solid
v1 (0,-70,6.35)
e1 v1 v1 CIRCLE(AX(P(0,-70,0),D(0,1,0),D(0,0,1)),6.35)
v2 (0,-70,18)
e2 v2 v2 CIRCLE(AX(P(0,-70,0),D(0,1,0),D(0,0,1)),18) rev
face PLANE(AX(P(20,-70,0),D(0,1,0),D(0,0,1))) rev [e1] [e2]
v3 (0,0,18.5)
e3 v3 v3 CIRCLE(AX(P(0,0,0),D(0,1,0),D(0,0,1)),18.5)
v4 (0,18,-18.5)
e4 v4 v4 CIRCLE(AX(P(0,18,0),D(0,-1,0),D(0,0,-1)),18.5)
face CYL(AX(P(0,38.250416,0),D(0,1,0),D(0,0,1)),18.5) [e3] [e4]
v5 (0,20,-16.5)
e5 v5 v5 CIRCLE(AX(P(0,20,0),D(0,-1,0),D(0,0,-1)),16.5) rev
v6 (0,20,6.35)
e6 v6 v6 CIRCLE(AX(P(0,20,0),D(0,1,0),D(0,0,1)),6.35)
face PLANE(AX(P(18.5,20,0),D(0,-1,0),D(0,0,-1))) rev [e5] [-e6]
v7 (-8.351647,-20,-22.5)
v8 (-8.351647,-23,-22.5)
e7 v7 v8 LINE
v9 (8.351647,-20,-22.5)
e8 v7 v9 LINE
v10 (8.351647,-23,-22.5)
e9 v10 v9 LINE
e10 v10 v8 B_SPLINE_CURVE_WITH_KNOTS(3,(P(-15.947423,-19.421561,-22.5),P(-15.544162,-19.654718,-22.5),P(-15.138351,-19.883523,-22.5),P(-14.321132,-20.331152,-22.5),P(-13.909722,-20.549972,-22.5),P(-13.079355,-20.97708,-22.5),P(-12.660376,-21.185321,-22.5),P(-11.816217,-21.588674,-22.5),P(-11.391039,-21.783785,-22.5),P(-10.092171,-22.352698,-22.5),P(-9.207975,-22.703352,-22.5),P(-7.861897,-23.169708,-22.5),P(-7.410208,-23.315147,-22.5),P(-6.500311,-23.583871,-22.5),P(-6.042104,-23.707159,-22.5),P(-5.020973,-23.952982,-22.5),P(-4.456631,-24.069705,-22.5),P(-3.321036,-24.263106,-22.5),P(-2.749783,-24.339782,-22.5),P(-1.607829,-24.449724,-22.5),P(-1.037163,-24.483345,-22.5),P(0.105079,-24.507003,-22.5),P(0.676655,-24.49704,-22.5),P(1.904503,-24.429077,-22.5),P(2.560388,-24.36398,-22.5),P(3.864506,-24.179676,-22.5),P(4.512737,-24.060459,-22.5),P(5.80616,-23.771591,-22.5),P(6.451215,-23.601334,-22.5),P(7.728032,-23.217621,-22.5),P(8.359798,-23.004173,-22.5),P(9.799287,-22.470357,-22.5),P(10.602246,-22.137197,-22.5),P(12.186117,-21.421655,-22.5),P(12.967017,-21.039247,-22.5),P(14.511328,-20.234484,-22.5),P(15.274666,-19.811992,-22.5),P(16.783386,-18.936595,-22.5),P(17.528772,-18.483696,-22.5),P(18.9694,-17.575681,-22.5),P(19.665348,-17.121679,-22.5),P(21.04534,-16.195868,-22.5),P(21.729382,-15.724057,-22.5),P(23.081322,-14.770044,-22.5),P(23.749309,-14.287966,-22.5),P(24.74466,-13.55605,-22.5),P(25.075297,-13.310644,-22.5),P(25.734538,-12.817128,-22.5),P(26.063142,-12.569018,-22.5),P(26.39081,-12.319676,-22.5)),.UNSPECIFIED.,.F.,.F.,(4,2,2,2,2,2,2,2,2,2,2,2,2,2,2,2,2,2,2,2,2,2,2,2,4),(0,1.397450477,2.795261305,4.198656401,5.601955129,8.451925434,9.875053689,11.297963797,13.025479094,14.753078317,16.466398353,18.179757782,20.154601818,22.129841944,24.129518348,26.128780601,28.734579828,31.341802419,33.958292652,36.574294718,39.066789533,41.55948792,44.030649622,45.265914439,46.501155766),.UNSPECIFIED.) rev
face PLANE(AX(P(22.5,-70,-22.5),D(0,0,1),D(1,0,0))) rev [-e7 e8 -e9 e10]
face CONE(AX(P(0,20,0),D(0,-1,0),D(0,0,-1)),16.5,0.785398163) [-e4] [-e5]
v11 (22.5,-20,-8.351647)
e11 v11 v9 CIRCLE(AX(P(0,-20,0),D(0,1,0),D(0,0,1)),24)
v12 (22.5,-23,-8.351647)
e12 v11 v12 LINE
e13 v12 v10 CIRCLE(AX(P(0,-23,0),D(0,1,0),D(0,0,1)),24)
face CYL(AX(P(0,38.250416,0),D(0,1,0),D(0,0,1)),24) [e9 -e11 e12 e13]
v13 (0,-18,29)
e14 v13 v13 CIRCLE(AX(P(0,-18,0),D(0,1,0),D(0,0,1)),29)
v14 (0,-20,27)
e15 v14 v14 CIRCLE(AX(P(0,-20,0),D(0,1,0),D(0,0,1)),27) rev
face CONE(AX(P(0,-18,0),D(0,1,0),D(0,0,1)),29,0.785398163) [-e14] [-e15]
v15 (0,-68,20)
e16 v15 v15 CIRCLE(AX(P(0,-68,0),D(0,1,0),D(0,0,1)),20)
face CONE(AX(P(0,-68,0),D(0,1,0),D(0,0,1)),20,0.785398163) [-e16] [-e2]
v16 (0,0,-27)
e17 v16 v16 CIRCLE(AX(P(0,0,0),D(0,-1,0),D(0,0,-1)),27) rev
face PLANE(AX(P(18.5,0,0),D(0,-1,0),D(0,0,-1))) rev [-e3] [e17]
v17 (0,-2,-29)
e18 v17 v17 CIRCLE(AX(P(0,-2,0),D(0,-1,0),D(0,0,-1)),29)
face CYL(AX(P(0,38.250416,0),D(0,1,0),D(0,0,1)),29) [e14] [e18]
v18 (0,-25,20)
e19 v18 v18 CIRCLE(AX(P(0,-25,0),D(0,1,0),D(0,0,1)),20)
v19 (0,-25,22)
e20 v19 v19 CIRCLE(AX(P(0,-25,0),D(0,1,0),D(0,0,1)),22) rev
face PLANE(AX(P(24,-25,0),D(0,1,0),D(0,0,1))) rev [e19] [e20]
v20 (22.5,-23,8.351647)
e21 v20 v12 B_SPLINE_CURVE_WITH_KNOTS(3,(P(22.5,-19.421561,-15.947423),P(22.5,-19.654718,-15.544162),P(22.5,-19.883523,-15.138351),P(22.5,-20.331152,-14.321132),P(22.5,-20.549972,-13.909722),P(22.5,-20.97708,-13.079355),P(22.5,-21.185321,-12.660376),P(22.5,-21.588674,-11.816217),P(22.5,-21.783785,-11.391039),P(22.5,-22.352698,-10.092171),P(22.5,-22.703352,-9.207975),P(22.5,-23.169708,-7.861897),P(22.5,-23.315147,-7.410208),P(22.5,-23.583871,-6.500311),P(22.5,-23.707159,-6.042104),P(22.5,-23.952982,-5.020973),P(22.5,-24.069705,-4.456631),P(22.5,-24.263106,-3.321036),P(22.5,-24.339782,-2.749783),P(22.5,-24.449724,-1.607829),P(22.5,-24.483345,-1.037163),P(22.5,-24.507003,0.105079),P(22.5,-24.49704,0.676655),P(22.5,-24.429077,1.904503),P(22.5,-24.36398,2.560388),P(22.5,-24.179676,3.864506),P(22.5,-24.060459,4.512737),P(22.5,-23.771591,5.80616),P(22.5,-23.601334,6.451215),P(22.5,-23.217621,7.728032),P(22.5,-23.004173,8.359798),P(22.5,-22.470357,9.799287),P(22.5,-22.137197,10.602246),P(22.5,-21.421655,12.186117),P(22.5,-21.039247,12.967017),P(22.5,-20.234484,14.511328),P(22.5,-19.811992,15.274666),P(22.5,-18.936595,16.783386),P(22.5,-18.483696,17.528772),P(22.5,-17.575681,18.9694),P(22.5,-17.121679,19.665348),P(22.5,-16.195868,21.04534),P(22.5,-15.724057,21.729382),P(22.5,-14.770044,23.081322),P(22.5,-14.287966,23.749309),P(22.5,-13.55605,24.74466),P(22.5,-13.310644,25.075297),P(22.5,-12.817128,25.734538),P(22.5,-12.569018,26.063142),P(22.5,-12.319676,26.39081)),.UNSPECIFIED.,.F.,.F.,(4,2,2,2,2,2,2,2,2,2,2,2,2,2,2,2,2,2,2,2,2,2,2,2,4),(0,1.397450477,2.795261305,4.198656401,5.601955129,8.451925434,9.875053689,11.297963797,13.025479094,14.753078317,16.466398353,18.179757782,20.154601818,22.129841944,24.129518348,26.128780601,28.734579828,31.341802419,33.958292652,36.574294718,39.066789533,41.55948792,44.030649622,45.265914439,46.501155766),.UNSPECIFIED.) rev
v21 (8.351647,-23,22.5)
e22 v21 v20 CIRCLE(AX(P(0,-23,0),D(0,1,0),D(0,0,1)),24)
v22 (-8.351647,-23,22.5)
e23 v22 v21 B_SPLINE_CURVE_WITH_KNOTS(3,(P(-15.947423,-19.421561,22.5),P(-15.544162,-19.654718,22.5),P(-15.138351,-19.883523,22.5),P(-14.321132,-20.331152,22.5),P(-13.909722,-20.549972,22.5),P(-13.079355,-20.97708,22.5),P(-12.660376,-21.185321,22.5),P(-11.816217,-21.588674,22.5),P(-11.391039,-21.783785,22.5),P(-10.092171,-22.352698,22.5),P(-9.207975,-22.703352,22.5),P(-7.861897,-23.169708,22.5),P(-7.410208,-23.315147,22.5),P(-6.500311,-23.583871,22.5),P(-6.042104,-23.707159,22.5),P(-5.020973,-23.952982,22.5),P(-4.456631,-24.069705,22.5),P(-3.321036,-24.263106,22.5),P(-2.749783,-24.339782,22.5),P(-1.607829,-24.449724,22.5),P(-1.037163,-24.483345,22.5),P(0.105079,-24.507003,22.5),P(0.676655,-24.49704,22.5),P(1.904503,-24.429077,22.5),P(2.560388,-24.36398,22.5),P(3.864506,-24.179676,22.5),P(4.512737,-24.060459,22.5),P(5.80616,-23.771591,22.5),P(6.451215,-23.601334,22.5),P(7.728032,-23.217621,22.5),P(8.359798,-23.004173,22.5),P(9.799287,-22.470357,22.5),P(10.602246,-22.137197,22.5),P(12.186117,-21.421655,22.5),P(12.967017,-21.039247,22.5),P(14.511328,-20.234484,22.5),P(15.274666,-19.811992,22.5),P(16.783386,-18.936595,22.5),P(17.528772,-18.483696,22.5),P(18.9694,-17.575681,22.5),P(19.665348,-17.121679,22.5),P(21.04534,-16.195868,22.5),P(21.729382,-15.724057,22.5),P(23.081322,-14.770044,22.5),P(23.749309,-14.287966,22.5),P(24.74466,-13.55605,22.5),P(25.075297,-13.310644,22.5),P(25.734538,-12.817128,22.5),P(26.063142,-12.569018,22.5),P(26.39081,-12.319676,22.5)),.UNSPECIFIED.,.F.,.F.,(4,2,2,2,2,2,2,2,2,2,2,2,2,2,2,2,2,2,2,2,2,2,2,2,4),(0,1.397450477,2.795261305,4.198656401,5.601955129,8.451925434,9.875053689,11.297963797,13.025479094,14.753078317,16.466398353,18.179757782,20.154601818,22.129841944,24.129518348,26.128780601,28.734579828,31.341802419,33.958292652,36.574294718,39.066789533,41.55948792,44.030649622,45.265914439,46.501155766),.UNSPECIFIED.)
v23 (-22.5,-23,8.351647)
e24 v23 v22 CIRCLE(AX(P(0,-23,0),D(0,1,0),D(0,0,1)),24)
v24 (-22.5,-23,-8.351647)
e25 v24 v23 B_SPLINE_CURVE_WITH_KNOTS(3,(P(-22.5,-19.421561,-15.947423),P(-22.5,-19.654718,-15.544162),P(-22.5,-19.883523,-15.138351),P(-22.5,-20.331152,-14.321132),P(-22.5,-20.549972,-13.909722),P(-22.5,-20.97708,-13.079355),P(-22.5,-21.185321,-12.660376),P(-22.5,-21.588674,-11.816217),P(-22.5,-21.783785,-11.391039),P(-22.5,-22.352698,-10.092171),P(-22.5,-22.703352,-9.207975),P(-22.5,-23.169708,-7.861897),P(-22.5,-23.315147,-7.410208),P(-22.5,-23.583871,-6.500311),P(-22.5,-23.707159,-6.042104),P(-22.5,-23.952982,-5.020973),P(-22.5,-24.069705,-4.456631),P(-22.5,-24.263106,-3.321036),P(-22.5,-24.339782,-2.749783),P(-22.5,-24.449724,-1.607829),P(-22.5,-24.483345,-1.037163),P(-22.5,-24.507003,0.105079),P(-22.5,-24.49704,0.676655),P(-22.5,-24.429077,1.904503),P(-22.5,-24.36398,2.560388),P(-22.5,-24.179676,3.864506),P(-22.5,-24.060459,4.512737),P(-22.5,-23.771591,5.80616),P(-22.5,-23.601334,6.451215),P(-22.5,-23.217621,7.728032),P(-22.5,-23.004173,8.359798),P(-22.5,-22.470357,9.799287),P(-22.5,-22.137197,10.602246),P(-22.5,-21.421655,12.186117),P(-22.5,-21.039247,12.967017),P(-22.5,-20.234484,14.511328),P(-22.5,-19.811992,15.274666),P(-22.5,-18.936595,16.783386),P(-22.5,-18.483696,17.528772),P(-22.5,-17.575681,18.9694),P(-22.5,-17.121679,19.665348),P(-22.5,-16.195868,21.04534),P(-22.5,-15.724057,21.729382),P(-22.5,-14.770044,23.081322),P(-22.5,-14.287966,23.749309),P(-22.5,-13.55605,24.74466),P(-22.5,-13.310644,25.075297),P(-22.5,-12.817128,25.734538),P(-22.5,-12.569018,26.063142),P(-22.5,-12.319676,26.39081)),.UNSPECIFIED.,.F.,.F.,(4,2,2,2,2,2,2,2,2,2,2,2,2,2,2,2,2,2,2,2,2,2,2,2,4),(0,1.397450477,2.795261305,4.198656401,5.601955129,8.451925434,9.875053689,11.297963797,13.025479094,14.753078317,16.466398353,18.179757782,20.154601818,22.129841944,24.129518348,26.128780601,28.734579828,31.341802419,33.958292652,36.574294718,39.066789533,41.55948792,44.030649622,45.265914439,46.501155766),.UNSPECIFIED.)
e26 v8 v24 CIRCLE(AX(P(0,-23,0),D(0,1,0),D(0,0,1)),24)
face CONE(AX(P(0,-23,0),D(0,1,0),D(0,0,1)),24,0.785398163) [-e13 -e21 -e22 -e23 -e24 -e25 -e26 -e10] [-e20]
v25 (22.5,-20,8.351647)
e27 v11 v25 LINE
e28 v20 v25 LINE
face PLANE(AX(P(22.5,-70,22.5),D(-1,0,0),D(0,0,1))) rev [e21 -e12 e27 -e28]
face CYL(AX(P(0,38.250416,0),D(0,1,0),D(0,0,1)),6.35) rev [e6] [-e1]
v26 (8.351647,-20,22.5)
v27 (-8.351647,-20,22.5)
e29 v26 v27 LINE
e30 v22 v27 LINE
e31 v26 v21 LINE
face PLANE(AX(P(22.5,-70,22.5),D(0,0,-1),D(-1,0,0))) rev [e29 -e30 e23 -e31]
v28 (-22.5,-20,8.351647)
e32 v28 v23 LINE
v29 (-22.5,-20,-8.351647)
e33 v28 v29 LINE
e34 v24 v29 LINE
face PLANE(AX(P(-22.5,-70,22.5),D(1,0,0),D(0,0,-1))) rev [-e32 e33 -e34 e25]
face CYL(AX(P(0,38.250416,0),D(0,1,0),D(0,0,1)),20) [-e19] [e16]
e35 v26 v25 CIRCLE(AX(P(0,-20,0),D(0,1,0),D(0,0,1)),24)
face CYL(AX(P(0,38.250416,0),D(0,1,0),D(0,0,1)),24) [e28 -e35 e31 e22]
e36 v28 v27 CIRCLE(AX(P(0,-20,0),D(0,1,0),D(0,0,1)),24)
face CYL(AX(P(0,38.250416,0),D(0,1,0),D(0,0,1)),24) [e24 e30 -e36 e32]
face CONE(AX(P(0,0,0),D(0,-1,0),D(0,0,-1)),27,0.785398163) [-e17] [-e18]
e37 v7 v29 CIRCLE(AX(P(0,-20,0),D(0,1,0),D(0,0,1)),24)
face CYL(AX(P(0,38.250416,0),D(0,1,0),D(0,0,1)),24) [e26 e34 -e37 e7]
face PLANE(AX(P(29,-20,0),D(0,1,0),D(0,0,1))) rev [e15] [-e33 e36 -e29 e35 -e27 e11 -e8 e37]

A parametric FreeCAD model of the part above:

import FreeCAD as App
import Part
import Sketcher


def edges_at(feature, points):
    """Names of the edges that pass closest to the given points."""
    edges = feature.Shape.Edges
    near = lambda p: min(range(len(edges)), key=lambda i: edges[i].distToShape(Part.Vertex(*p))[0])
    return sorted({f"Edge{near(p) + 1}" for p in points})

doc = App.newDocument("Part")
body = doc.addObject("PartDesign::Body", "Body")

# Sketch on XY plane
sketch1 = doc.addObject("Sketcher::SketchObject", "Sketch")
body.addObject(sketch1)
sketch1.AttachmentSupport = (doc.XY_Plane, [""])
sketch1.MapMode = "FlatFace"
sketch1.addGeometry(Part.LineSegment(App.Vector(18.5, 0, 0), App.Vector(18.5, 20, 0)), False)
sketch1.addGeometry(Part.LineSegment(App.Vector(18.5, 20, 0), App.Vector(6.3, 20, 0)), False)
sketch1.addGeometry(Part.LineSegment(App.Vector(6.3, 20, 0), App.Vector(6.3, -70, 0)), False)
sketch1.addGeometry(Part.LineSegment(App.Vector(6.3, -70, 0), App.Vector(20, -70, 0)), False)
sketch1.addGeometry(Part.LineSegment(App.Vector(20, -70, 0), App.Vector(20, -25, 0)), False)
sketch1.addGeometry(Part.LineSegment(App.Vector(20, -25, 0), App.Vector(24, -25, 0)), False)
sketch1.addGeometry(Part.LineSegment(App.Vector(24, -25, 0), App.Vector(24, -20, 0)), False)
sketch1.addGeometry(Part.LineSegment(App.Vector(24, -20, 0), App.Vector(29, -20, 0)), False)
sketch1.addGeometry(Part.LineSegment(App.Vector(29, -20, 0), App.Vector(29, 0, 0)), False)
sketch1.addGeometry(Part.LineSegment(App.Vector(29, 0, 0), App.Vector(18.5, 0, 0)), False)
sketch1.addConstraint(Sketcher.Constraint("Coincident", 0, 2, 1, 1))
sketch1.addConstraint(Sketcher.Constraint("Coincident", 1, 2, 2, 1))
sketch1.addConstraint(Sketcher.Constraint("Coincident", 2, 2, 3, 1))
sketch1.addConstraint(Sketcher.Constraint("Coincident", 3, 2, 4, 1))
sketch1.addConstraint(Sketcher.Constraint("Coincident", 4, 2, 5, 1))
sketch1.addConstraint(Sketcher.Constraint("Coincident", 5, 2, 6, 1))
sketch1.addConstraint(Sketcher.Constraint("Coincident", 6, 2, 7, 1))
sketch1.addConstraint(Sketcher.Constraint("Coincident", 7, 2, 8, 1))
sketch1.addConstraint(Sketcher.Constraint("Coincident", 8, 2, 9, 1))
sketch1.addConstraint(Sketcher.Constraint("Coincident", 9, 2, 0, 1))
sketch1.addConstraint(Sketcher.Constraint("Vertical", 0))
sketch1.addConstraint(Sketcher.Constraint("Horizontal", 1))
sketch1.addConstraint(Sketcher.Constraint("Vertical", 2))
sketch1.addConstraint(Sketcher.Constraint("Horizontal", 3))
sketch1.addConstraint(Sketcher.Constraint("Vertical", 4))
sketch1.addConstraint(Sketcher.Constraint("Horizontal", 5))
sketch1.addConstraint(Sketcher.Constraint("Vertical", 6))
sketch1.addConstraint(Sketcher.Constraint("Horizontal", 7))
sketch1.addConstraint(Sketcher.Constraint("Vertical", 8))
sketch1.addConstraint(Sketcher.Constraint("Horizontal", 9))
sketch1.addConstraint(Sketcher.Constraint("PointOnObject", 8, 2, -1))
sketch1.addConstraint(Sketcher.Constraint("Equal", 7, 6))
sketch1.addConstraint(Sketcher.Constraint("Equal", 0, 8))
sketch1.addConstraint(Sketcher.Constraint("DistanceX", 5, 1, 5, 2, 4.0))
sketch1.addConstraint(Sketcher.Constraint("DistanceX", 7, 1, 7, 2, 5.0))
sketch1.addConstraint(Sketcher.Constraint("DistanceY", 0, 1, 0, 2, 20.0))
sketch1.addConstraint(Sketcher.Constraint("DistanceY", 2, 2, 2, 1, 90.0))
sketch1.addConstraint(Sketcher.Constraint("DistanceX", 9, 2, 9, 1, 10.5))
sketch1.addConstraint(Sketcher.Constraint("DistanceX", -1, 1, 3, 2, 20.0))
sketch1.addConstraint(Sketcher.Constraint("DistanceX", 1, 2, 1, 1, 12.15))
revolution = doc.addObject("PartDesign::Revolution", "Revolution")
body.addObject(revolution)
revolution.Profile = sketch1
revolution.ReferenceAxis = (sketch1, ["V_Axis"])
revolution.Angle = 360
doc.recompute()

chamfer = doc.addObject("PartDesign::Chamfer", "Chamfer")
body.addObject(chamfer)
chamfer.Base = (revolution, edges_at(revolution, [
    (0, -20, -29),
    (0, 0, -29),
    (0, 20, -18.5),
    (0, -70, -20),
    (0, -25, -24),
]))
chamfer.Size = 2

# Sketch on XZ plane
sketch2 = doc.addObject("Sketcher::SketchObject", "Sketch001")
body.addObject(sketch2)
sketch2.AttachmentSupport = (doc.XZ_Plane, [""])
sketch2.MapMode = "FlatFace"
sketch2.AttachmentOffset = App.Placement(App.Vector(0, 0, 20), App.Rotation())
sketch2.addGeometry(Part.LineSegment(App.Vector(-42, 42, 0), App.Vector(-42, -42, 0)), False)
sketch2.addGeometry(Part.LineSegment(App.Vector(-42, -42, 0), App.Vector(42, -42, 0)), False)
sketch2.addGeometry(Part.LineSegment(App.Vector(42, -42, 0), App.Vector(42, 42, 0)), False)
sketch2.addGeometry(Part.LineSegment(App.Vector(42, 42, 0), App.Vector(-42, 42, 0)), False)
sketch2.addGeometry(Part.LineSegment(App.Vector(22, -22, 0), App.Vector(-22, -22, 0)), False)
sketch2.addGeometry(Part.LineSegment(App.Vector(-22, -22, 0), App.Vector(-22, 22, 0)), False)
sketch2.addGeometry(Part.LineSegment(App.Vector(-22, 22, 0), App.Vector(22, 22, 0)), False)
sketch2.addGeometry(Part.LineSegment(App.Vector(22, 22, 0), App.Vector(22, -22, 0)), False)
sketch2.addConstraint(Sketcher.Constraint("Coincident", 0, 2, 1, 1))
sketch2.addConstraint(Sketcher.Constraint("Coincident", 1, 2, 2, 1))
sketch2.addConstraint(Sketcher.Constraint("Coincident", 2, 2, 3, 1))
sketch2.addConstraint(Sketcher.Constraint("Coincident", 3, 2, 0, 1))
sketch2.addConstraint(Sketcher.Constraint("Coincident", 4, 2, 5, 1))
sketch2.addConstraint(Sketcher.Constraint("Coincident", 5, 2, 6, 1))
sketch2.addConstraint(Sketcher.Constraint("Coincident", 6, 2, 7, 1))
sketch2.addConstraint(Sketcher.Constraint("Coincident", 7, 2, 4, 1))
sketch2.addConstraint(Sketcher.Constraint("Vertical", 0))
sketch2.addConstraint(Sketcher.Constraint("Horizontal", 1))
sketch2.addConstraint(Sketcher.Constraint("Vertical", 2))
sketch2.addConstraint(Sketcher.Constraint("Horizontal", 3))
sketch2.addConstraint(Sketcher.Constraint("Horizontal", 4))
sketch2.addConstraint(Sketcher.Constraint("Vertical", 5))
sketch2.addConstraint(Sketcher.Constraint("Horizontal", 6))
sketch2.addConstraint(Sketcher.Constraint("Vertical", 7))
sketch2.addConstraint(Sketcher.Constraint("Symmetric", 0, 2, 2, 2, -1, 1))
sketch2.addConstraint(Sketcher.Constraint("Symmetric", 4, 2, 6, 2, -1, 1))
sketch2.addConstraint(Sketcher.Constraint("Equal", 3, 0))
sketch2.addConstraint(Sketcher.Constraint("Equal", 6, 5))
sketch2.addConstraint(Sketcher.Constraint("DistanceX", 4, 2, 4, 1, 45.0))
sketch2.addConstraint(Sketcher.Constraint("DistanceX", 1, 1, 1, 2, 84.354))
pocket1 = doc.addObject("PartDesign::Pocket", "Pocket")
body.addObject(pocket1)
pocket1.Profile = sketch2
pocket1.Type = "ThroughAll"
pocket1.Reversed = True

doc.recompute()
